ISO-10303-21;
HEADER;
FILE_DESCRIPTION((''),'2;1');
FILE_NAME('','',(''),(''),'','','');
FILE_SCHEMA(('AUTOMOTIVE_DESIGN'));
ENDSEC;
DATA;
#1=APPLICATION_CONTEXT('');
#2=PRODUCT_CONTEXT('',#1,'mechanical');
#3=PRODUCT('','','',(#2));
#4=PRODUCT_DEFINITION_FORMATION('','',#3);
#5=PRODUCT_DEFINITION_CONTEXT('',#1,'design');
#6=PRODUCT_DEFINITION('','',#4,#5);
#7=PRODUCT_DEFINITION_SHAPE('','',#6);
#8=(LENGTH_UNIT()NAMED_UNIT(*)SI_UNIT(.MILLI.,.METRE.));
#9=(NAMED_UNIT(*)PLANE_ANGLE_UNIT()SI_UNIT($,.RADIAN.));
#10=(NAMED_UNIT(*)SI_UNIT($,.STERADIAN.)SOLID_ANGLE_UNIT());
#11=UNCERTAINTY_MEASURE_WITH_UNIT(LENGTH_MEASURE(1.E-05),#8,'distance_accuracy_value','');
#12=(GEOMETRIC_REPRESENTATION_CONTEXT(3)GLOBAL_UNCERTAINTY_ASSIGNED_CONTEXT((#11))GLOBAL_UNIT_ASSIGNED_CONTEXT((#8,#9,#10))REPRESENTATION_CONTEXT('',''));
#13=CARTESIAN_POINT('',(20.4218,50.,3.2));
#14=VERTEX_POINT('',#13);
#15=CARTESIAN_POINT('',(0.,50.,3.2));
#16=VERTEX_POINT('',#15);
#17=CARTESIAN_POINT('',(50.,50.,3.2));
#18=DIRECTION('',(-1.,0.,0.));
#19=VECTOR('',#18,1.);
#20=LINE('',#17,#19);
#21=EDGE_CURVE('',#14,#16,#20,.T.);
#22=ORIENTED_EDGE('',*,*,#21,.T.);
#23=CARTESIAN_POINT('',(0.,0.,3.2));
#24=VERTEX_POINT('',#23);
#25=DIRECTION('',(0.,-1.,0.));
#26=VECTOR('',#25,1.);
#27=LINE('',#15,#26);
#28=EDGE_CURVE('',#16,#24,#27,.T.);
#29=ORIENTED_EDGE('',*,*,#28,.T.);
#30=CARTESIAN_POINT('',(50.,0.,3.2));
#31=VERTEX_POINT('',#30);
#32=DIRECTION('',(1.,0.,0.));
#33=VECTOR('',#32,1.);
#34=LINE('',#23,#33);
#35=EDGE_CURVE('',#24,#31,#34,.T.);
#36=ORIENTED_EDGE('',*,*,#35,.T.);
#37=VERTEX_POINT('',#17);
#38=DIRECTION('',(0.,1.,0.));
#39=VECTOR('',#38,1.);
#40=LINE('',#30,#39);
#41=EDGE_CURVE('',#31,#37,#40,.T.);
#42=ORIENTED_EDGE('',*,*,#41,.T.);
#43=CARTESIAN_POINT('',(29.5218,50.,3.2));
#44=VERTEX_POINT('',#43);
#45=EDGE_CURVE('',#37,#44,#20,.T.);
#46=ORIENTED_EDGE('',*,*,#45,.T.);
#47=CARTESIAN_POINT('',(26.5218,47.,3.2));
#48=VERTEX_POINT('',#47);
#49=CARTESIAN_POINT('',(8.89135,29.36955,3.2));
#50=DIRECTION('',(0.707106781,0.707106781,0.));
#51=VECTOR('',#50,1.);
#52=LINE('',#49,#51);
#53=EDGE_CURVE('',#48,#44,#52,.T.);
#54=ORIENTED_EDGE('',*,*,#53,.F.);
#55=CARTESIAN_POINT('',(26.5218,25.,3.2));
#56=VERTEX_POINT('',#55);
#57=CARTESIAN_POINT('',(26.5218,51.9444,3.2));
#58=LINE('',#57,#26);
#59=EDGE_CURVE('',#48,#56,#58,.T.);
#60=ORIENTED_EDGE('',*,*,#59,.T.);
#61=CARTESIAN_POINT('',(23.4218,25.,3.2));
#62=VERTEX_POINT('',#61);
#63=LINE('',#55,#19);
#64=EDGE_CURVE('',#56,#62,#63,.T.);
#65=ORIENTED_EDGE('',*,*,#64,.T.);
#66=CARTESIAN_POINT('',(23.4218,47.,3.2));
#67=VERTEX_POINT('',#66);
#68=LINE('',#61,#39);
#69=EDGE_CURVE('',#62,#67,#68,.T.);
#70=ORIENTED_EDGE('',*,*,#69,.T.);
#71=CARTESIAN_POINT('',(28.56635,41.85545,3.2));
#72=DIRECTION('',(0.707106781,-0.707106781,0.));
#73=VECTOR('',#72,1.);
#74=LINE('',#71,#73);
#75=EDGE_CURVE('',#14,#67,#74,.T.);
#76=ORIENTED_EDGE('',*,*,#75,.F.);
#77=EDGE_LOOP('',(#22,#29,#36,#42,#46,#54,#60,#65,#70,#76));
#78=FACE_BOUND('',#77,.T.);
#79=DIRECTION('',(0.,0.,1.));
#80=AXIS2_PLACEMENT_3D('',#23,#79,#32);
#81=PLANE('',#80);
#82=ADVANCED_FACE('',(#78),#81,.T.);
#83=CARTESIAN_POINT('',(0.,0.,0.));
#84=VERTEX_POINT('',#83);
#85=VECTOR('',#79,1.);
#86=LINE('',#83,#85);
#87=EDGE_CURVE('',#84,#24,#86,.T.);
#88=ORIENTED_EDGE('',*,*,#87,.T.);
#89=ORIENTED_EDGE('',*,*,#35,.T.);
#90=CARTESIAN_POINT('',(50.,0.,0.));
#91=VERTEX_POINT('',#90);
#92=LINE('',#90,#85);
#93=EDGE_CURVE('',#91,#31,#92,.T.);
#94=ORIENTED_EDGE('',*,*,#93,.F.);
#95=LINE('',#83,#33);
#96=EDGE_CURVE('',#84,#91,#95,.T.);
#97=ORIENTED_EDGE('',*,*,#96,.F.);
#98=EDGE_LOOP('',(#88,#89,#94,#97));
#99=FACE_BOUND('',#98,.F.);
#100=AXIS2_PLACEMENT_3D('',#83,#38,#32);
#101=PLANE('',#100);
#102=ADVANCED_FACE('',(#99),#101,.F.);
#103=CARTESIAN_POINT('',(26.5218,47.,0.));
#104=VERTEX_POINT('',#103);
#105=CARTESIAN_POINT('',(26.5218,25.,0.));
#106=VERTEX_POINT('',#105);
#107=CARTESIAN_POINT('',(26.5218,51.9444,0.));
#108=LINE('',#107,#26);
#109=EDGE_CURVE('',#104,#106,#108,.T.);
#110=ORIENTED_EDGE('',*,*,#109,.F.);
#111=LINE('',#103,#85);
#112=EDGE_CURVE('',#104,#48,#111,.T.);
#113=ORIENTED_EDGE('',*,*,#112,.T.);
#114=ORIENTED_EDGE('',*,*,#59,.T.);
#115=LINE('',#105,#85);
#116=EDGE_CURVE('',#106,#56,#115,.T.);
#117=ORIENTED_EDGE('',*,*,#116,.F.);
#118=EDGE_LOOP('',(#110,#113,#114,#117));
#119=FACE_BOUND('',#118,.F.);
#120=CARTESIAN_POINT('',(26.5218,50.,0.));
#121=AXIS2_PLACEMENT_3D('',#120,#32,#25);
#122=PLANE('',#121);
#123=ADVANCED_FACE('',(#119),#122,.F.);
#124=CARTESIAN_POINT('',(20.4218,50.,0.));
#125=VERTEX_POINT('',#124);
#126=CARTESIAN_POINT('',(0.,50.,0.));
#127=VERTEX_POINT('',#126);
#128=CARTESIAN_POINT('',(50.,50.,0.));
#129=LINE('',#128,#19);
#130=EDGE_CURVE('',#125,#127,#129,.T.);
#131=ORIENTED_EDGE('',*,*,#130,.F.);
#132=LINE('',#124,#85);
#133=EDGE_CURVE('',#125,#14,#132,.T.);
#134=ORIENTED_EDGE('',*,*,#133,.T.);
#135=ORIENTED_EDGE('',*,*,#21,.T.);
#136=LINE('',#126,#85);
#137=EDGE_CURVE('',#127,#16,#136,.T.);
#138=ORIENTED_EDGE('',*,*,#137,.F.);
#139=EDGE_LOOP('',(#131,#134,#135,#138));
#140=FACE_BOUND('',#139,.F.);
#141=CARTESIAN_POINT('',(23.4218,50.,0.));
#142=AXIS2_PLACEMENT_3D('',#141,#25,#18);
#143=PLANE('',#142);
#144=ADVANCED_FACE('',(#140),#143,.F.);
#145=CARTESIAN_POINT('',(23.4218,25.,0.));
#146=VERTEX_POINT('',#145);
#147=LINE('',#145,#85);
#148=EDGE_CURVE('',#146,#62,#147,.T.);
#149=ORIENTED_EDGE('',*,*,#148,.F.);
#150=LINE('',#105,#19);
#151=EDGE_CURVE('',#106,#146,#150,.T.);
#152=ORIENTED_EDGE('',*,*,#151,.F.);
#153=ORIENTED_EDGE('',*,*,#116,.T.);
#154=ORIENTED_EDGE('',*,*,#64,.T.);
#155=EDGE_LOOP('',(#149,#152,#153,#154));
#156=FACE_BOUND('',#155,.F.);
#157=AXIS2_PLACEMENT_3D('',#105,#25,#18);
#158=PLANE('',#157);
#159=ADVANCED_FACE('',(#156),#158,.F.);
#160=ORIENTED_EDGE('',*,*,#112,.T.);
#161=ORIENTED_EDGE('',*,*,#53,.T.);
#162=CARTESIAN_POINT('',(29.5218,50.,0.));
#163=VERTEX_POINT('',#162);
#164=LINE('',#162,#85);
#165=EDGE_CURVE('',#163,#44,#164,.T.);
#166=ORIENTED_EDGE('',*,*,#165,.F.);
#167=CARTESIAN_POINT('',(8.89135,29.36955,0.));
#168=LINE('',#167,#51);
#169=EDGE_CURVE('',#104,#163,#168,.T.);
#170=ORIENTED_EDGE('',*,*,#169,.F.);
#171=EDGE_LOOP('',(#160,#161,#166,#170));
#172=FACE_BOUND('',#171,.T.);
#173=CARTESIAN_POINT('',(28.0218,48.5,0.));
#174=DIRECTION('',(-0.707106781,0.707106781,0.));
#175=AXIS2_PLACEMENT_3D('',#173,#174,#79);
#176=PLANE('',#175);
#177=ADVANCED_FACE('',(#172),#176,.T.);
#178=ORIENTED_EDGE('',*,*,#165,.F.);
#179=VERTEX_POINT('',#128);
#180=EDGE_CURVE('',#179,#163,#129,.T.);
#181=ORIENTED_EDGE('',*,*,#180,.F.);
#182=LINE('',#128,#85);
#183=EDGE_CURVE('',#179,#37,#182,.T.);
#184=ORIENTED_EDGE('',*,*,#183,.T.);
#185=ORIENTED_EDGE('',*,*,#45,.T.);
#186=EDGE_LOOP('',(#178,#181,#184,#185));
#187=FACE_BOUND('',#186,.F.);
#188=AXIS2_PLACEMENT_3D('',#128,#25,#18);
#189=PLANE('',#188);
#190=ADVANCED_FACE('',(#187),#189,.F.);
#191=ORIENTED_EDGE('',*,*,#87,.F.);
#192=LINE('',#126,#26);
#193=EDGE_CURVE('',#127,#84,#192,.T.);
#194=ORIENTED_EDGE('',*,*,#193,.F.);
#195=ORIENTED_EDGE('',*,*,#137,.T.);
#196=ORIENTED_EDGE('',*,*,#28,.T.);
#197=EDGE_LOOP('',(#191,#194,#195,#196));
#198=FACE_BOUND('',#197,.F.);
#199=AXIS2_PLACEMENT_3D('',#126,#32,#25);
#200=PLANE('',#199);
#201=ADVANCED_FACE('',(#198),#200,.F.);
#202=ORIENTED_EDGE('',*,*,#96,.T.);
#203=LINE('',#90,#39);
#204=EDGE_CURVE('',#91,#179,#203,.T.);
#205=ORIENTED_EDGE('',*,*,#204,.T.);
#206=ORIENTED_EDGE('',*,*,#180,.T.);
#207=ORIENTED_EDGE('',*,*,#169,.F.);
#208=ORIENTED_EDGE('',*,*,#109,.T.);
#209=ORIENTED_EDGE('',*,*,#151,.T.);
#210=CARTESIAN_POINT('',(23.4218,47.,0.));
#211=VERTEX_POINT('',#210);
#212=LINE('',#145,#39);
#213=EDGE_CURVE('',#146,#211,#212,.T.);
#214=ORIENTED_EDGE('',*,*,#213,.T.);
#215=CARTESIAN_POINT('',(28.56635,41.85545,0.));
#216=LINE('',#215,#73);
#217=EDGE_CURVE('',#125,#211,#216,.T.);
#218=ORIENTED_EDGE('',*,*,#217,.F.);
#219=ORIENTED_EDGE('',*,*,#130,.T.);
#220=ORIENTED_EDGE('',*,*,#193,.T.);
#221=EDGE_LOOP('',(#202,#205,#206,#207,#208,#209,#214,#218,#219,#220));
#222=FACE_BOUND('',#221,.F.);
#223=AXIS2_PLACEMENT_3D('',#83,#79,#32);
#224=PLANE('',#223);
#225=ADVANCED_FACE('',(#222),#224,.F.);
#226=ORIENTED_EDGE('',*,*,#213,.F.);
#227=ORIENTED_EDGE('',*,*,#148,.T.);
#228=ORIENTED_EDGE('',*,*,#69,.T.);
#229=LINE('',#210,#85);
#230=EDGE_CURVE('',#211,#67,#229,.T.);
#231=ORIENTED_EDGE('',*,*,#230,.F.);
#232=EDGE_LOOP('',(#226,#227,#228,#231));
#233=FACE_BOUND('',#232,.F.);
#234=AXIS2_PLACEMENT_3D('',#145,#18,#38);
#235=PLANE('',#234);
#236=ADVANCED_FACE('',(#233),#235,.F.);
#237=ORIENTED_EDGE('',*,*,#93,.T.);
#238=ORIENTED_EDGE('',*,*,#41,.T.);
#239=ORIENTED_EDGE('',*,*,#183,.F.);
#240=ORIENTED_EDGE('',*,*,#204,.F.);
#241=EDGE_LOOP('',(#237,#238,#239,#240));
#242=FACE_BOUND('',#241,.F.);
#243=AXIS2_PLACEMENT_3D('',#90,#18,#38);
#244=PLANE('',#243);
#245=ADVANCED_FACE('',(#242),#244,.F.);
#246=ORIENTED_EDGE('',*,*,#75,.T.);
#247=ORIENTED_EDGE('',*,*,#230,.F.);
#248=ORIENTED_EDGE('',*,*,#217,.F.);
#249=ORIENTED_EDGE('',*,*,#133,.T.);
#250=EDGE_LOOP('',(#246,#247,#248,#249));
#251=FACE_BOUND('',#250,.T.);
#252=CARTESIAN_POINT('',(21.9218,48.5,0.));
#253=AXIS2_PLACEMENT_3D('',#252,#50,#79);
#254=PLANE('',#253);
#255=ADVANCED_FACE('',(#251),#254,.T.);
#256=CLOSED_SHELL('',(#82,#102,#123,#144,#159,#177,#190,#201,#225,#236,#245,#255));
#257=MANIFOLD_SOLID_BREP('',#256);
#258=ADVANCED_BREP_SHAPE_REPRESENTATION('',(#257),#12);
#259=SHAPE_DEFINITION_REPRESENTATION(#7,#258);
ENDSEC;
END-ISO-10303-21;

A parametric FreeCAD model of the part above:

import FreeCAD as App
import Part
import Sketcher

V = App.Vector
Q = App.Units.Quantity


def edges_at(feature, points):
    """Names of the edges that pass closest to the given points."""
    edges = feature.Shape.Edges
    near = lambda p: min(range(len(edges)), key=lambda i: edges[i].distToShape(Part.Vertex(*p))[0])
    return sorted({f"Edge{near(p) + 1}" for p in points})

doc = App.newDocument("Part")
body = doc.addObject("PartDesign::Body", "Body")

# Sketch on XY plane
sketch1 = body.newObject("Sketcher::SketchObject", "Sketch")
sketch1.AttachmentSupport = (doc.getObject("XY_Plane"), [""])
sketch1.MapMode = "FlatFace"
sketch1.addGeometry([
    Part.LineSegment(V(0, 50, 0), V(0, 0, 0)),  # 0
    Part.LineSegment(V(0, 0, 0), V(50, 0, 0)),  # 1
    Part.LineSegment(V(50, 0, 0), V(50, 50, 0)),  # 2
    Part.LineSegment(V(50, 50, 0), V(26.5218, 50, 0)),  # 3
    Part.LineSegment(V(26.5218, 50, 0), V(26.5218, 25, 0)),  # 4
    Part.LineSegment(V(26.5218, 25, 0), V(23.4218, 25, 0)),  # 5
    Part.LineSegment(V(23.4218, 25, 0), V(23.4218, 50, 0)),  # 6
    Part.LineSegment(V(23.4218, 50, 0), V(0, 50, 0)),  # 7
], False)
sketch1.addConstraint([
    Sketcher.Constraint("Coincident", 0, 2, 1, 1),
    Sketcher.Constraint("Coincident", 1, 2, 2, 1),
    Sketcher.Constraint("Coincident", 2, 2, 3, 1),
    Sketcher.Constraint("Coincident", 3, 2, 4, 1),
    Sketcher.Constraint("Coincident", 4, 2, 5, 1),
    Sketcher.Constraint("Coincident", 5, 2, 6, 1),
    Sketcher.Constraint("Coincident", 6, 2, 7, 1),
    Sketcher.Constraint("Coincident", 7, 2, 0, 1),
    Sketcher.Constraint("Vertical", 0),
    Sketcher.Constraint("Horizontal", 1),
    Sketcher.Constraint("Vertical", 2),
    Sketcher.Constraint("Horizontal", 3),
    Sketcher.Constraint("Vertical", 4),
    Sketcher.Constraint("Horizontal", 5),
    Sketcher.Constraint("Vertical", 6),
    Sketcher.Constraint("Horizontal", 7),
    Sketcher.Constraint("Coincident", 0, 2, -1, 1),
    Sketcher.Constraint("Horizontal", 3, 2, 6, 2),
    Sketcher.Constraint("Equal", 1, 0),
    Sketcher.Constraint("DistanceX", 5, 2, 5, 1, Q("3.1 mm")),
    Sketcher.Constraint("DistanceX", 1, 1, 1, 2, Q("50 mm")),
    Sketcher.Constraint("DistanceY", 4, 2, 4, 1, Q("25 mm")),
    Sketcher.Constraint("DistanceX", 3, 2, 3, 1, Q("23.4782 mm")),
])
pad1 = body.newObject("PartDesign::Pad", "Pad")
pad1.Profile = sketch1
pad1.Length = 3.2
doc.recompute()

chamfer = body.newObject("PartDesign::Chamfer", "Chamfer")
chamfer.Base = (pad1, edges_at(pad1, [(26.522, 50, 1.6), (23.422, 50, 1.6)]))
chamfer.Size = 3

doc.recompute()
